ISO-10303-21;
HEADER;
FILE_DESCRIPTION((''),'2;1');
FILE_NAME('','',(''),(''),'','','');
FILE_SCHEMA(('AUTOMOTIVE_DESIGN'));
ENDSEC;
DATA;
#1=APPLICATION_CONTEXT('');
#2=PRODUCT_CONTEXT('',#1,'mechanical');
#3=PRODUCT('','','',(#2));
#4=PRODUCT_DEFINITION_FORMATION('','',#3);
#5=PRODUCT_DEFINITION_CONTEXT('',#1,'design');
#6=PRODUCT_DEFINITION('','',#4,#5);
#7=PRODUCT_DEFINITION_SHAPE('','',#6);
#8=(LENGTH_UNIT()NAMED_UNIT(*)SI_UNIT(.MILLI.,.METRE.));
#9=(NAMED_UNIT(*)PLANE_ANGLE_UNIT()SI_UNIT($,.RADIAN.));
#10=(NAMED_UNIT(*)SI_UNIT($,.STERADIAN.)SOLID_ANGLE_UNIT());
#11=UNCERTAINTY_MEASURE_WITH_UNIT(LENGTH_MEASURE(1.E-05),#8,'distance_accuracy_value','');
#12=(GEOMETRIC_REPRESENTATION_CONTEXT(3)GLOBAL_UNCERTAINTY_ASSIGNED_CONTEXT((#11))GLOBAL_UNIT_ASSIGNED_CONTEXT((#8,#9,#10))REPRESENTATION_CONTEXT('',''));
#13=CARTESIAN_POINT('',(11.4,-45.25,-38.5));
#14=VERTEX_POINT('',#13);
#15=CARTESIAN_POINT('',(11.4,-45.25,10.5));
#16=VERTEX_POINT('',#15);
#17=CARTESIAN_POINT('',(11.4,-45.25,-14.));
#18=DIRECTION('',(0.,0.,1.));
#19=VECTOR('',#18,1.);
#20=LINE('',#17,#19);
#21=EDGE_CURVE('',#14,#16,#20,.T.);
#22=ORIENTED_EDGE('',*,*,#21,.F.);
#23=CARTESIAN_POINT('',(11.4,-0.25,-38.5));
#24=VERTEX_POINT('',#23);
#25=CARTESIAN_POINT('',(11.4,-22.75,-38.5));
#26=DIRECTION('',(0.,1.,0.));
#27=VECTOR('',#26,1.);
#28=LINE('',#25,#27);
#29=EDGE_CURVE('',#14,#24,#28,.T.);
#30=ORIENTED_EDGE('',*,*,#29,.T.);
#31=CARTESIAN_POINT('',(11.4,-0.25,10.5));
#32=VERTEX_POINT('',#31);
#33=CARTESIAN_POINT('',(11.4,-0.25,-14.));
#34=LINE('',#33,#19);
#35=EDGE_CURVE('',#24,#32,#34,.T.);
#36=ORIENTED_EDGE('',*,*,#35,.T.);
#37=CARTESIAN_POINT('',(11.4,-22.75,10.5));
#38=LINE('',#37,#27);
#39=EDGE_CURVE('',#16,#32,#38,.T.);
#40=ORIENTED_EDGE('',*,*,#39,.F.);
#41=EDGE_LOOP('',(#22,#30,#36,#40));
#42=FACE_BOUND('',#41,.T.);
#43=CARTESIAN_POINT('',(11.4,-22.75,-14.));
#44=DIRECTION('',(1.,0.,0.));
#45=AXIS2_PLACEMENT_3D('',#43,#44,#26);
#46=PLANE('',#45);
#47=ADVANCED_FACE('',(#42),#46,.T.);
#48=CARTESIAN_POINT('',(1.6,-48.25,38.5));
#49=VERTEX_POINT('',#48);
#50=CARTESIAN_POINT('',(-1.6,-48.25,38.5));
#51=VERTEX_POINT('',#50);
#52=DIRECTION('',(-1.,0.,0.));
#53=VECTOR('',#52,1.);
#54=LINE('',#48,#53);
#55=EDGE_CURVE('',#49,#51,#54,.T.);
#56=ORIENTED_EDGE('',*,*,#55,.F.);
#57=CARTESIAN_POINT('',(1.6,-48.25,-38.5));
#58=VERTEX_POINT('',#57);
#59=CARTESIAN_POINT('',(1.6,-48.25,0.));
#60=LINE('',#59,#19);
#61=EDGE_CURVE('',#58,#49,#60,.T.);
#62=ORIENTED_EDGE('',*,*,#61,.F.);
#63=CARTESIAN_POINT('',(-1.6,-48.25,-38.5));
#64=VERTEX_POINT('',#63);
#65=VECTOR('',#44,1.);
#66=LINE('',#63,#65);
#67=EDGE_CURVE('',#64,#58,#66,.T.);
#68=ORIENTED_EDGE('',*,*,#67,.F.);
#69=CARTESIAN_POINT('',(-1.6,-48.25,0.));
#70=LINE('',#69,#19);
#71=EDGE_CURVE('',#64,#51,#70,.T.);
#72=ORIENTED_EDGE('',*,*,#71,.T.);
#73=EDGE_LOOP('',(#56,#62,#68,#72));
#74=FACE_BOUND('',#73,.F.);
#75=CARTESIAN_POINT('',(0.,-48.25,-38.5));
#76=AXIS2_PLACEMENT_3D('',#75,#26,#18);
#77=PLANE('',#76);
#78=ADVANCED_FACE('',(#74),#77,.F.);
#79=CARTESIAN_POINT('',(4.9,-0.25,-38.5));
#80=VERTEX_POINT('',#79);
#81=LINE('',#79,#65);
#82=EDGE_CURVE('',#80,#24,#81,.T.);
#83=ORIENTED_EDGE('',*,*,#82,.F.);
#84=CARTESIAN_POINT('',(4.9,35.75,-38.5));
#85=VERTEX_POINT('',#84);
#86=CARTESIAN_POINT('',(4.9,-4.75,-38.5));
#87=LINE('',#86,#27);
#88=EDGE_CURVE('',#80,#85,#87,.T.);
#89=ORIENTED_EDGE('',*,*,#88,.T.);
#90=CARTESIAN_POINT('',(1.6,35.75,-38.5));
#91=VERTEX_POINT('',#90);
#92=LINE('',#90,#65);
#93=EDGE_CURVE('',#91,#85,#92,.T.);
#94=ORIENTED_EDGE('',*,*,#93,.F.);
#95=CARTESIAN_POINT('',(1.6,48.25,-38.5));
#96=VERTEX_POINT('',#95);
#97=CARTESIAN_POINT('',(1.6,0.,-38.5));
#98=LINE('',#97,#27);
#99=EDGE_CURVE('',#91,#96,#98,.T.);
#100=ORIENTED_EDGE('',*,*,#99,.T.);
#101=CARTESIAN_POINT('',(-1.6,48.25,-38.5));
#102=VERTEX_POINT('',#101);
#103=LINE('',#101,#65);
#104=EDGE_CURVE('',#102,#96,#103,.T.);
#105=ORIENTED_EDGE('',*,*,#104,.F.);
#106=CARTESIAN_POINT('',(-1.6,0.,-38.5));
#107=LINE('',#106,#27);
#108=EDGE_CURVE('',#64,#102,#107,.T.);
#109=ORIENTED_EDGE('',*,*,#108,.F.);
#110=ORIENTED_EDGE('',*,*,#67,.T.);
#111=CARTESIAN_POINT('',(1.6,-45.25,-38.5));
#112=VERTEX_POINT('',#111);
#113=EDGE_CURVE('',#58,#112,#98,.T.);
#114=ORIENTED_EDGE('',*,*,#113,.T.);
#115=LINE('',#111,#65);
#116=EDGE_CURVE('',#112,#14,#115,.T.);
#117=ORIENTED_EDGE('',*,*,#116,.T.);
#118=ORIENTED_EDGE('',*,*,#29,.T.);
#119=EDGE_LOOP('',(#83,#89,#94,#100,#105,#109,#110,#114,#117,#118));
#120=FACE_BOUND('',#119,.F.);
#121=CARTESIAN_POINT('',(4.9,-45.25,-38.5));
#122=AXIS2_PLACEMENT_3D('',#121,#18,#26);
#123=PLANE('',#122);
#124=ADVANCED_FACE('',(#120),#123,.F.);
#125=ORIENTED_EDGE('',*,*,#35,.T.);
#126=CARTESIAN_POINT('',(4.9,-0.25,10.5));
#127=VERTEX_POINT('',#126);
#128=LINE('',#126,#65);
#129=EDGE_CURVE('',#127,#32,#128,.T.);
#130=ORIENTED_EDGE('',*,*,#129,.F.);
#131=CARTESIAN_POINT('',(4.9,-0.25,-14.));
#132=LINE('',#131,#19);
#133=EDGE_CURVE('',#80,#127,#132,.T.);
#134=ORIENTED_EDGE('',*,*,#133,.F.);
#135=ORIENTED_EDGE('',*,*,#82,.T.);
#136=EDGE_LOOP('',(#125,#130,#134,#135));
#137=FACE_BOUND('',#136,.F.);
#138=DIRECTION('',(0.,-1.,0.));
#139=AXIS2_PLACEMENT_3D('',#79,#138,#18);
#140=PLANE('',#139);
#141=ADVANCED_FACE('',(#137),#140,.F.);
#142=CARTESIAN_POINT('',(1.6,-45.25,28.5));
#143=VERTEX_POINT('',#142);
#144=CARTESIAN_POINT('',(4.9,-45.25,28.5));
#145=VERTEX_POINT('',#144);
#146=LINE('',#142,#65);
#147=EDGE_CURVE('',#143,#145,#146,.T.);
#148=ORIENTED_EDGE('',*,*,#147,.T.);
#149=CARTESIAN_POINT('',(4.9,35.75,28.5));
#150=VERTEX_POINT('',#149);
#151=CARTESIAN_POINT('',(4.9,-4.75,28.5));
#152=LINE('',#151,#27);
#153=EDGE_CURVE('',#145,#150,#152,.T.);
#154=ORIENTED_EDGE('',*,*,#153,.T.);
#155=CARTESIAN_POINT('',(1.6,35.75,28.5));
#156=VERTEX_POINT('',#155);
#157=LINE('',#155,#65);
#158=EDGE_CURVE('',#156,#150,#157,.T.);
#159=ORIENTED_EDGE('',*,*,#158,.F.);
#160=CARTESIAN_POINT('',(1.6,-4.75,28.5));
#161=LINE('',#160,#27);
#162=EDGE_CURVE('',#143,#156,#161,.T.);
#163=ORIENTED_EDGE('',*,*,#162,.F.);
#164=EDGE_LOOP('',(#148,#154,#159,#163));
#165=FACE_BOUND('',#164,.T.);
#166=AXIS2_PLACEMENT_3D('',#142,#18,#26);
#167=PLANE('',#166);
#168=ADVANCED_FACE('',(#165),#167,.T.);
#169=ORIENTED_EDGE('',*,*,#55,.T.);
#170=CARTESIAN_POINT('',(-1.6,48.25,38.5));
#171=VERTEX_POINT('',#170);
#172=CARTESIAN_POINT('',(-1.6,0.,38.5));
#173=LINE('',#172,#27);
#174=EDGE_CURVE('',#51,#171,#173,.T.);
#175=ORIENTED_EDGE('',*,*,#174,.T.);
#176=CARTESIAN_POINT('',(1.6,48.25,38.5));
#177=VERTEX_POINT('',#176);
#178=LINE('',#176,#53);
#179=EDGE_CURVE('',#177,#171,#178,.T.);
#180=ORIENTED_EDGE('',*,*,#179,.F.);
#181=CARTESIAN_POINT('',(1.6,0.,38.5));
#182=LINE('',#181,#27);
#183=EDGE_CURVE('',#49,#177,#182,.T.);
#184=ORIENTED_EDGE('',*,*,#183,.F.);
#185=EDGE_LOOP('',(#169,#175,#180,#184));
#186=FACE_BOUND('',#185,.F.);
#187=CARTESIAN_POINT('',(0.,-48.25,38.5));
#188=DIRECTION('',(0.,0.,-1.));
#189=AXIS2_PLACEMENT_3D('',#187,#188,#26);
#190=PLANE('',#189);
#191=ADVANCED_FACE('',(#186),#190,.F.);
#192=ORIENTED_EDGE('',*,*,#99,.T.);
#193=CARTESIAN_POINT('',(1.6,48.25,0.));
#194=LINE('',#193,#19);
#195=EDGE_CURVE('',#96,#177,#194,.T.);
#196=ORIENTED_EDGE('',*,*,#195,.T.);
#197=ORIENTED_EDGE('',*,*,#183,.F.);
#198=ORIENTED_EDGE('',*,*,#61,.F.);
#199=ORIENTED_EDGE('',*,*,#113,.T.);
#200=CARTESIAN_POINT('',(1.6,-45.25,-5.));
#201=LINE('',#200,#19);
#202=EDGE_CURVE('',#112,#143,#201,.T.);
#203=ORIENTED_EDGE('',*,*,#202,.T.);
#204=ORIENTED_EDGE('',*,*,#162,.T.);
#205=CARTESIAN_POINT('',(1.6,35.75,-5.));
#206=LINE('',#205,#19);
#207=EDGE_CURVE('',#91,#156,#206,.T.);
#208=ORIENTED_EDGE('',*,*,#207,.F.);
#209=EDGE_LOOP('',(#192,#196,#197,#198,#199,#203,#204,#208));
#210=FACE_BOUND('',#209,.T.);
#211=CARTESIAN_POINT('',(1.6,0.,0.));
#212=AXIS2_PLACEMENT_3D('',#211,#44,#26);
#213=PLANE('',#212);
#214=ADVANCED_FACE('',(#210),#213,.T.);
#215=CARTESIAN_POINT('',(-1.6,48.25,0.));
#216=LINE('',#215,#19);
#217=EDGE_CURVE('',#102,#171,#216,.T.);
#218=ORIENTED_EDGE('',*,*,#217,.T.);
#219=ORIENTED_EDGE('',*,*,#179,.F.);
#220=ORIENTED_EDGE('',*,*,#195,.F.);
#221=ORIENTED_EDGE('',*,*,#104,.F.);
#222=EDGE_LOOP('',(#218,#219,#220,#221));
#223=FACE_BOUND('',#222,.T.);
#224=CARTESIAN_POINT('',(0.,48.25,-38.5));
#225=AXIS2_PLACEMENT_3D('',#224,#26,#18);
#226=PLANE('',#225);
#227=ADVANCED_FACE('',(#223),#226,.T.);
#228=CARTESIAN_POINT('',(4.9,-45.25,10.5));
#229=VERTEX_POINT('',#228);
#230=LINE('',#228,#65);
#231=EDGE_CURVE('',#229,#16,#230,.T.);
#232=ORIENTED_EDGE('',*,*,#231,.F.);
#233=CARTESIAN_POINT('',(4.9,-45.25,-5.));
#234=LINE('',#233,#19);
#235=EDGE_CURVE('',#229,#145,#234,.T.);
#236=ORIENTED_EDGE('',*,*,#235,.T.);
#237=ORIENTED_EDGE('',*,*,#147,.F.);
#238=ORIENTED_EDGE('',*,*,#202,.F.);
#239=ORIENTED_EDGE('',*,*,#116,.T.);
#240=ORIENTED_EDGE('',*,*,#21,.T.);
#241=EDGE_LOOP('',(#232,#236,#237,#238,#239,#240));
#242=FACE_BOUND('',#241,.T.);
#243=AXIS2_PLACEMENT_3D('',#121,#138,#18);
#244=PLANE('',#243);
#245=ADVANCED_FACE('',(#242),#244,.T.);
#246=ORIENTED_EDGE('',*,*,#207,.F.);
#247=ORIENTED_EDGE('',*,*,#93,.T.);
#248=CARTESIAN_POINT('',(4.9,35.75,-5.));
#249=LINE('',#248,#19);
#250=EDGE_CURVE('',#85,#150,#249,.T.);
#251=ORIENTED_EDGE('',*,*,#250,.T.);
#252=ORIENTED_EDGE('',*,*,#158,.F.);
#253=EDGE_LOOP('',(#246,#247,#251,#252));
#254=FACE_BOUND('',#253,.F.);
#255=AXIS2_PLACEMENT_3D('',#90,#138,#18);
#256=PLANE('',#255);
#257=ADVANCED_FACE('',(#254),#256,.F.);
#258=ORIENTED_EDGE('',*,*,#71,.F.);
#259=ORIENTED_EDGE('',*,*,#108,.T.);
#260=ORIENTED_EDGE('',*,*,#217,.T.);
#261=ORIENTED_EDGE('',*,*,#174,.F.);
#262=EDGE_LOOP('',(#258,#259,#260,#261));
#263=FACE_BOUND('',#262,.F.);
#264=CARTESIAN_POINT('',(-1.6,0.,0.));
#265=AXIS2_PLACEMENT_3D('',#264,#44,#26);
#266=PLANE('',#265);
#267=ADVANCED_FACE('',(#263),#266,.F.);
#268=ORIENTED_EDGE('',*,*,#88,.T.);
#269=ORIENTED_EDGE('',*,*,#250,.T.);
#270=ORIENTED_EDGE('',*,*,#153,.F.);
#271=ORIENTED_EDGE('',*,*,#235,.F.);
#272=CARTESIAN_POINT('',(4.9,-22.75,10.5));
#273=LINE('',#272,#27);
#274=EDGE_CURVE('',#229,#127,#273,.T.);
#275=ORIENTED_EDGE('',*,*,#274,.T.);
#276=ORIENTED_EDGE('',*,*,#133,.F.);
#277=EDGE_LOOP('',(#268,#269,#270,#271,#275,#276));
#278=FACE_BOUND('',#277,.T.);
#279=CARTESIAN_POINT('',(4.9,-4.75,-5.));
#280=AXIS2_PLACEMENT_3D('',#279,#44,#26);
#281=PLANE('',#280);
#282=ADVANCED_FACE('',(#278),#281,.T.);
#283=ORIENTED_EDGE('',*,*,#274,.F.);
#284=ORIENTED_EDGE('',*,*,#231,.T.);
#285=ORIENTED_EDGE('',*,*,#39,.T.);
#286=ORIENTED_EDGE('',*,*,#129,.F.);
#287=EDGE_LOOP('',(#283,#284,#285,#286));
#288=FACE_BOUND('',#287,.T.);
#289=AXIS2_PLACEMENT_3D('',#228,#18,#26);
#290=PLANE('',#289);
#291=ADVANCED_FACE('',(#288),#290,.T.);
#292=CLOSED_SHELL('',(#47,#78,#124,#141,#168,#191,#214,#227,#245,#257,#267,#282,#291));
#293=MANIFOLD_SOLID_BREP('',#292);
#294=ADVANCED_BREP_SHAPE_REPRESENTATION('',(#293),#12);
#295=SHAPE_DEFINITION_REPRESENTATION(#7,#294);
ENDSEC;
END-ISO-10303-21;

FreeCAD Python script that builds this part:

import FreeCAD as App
import Part
import Sketcher
from FreeCAD import Vector


def add_polygon(sketch, points):
    """Adds a closed chain of lines whose ends are joined by coincident constraints."""
    first, n = sketch.GeometryCount, len(points)
    for a, b in zip(points, points[1:] + points[:1]):
        sketch.addGeometry(Part.LineSegment(App.Vector(*a, 0), App.Vector(*b, 0)), False)
    for i in range(n):
        sketch.addConstraint(Sketcher.Constraint("Coincident", first + i, 2, first + (i + 1) % n, 1))

doc = App.newDocument("Part")
body = doc.addObject("PartDesign::Body", "Body")

# Sketch on YZ plane
sketch1 = body.newObject("Sketcher::SketchObject", "Sketch")
sketch1.AttachmentSupport = (doc.getObject("YZ_Plane"), [""])
sketch1.MapMode = "FlatFace"
add_polygon(sketch1, [(-48, 38), (-48, -38), (48, -38), (48, 38)])  # lines 0-3
sketch1.addConstraint(Sketcher.Constraint("Vertical", 0))
sketch1.addConstraint(Sketcher.Constraint("Horizontal", 1))
sketch1.addConstraint(Sketcher.Constraint("Vertical", 2))
sketch1.addConstraint(Sketcher.Constraint("Horizontal", 3))
sketch1.addConstraint(Sketcher.Constraint("Symmetric", 0, 2, 2, 2, -1, 1))
sketch1.addConstraint(Sketcher.Constraint("DistanceY", 0, 2, 0, 1, 77.0))
sketch1.addConstraint(Sketcher.Constraint("DistanceX", 1, 1, 1, 2, 96.5))
pad1 = body.newObject("PartDesign::Pad", "Pad")
pad1.Profile = sketch1
pad1.Length = 3.2
pad1.Midplane = True

# Sketch on YZ plane
sketch2 = body.newObject("Sketcher::SketchObject", "Sketch001")
sketch2.AttachmentSupport = (doc.getObject("YZ_Plane"), [""])
sketch2.MapMode = "FlatFace"
sketch2.AttachmentOffset = App.Placement(Vector(0, 0, 1.6), App.Rotation())
add_polygon(sketch2, [(-45, 28), (-45, -38), (36, -38), (36, 28)])  # lines 0-3
sketch2.addConstraint(Sketcher.Constraint("Vertical", 0))
sketch2.addConstraint(Sketcher.Constraint("Horizontal", 1))
sketch2.addConstraint(Sketcher.Constraint("Vertical", 2))
sketch2.addConstraint(Sketcher.Constraint("Horizontal", 3))
sketch2.addConstraint(Sketcher.Constraint("DistanceX", 1, 1, 1, 2, 81.0))
sketch2.addConstraint(Sketcher.Constraint("DistanceY", 0, 2, 0, 1, 67.0))
sketch2.addConstraint(Sketcher.Constraint("DistanceY", 0, 2, -1, 1, 38.5))
sketch2.addConstraint(Sketcher.Constraint("DistanceX", 0, 2, -1, 1, 45.25))
pad2 = body.newObject("PartDesign::Pad", "Pad001")
pad2.Profile = sketch2
pad2.Length = 3.3

# Sketch on YZ plane
sketch3 = body.newObject("Sketcher::SketchObject", "Sketch002")
sketch3.AttachmentSupport = (doc.getObject("YZ_Plane"), [""])
sketch3.MapMode = "FlatFace"
sketch3.AttachmentOffset = App.Placement(Vector(0, 0, 4.9), App.Rotation())
add_polygon(sketch3, [(-45, 10), (-45, -38), (0, -38), (0, 10)])  # lines 0-3
sketch3.addConstraint(Sketcher.Constraint("Vertical", 0))
sketch3.addConstraint(Sketcher.Constraint("Horizontal", 1))
sketch3.addConstraint(Sketcher.Constraint("Vertical", 2))
sketch3.addConstraint(Sketcher.Constraint("Horizontal", 3))
sketch3.addConstraint(Sketcher.Constraint("DistanceX", 1, 1, 1, 2, 45.0))
sketch3.addConstraint(Sketcher.Constraint("DistanceY", 0, 2, 0, 1, 49.0))
sketch3.addConstraint(Sketcher.Constraint("DistanceY", 0, 2, -1, 1, 38.5))
sketch3.addConstraint(Sketcher.Constraint("DistanceX", 0, 2, -1, 1, 45.25))
pad3 = body.newObject("PartDesign::Pad", "Pad002")
pad3.Profile = sketch3
pad3.Length = 6.5

doc.recompute()
